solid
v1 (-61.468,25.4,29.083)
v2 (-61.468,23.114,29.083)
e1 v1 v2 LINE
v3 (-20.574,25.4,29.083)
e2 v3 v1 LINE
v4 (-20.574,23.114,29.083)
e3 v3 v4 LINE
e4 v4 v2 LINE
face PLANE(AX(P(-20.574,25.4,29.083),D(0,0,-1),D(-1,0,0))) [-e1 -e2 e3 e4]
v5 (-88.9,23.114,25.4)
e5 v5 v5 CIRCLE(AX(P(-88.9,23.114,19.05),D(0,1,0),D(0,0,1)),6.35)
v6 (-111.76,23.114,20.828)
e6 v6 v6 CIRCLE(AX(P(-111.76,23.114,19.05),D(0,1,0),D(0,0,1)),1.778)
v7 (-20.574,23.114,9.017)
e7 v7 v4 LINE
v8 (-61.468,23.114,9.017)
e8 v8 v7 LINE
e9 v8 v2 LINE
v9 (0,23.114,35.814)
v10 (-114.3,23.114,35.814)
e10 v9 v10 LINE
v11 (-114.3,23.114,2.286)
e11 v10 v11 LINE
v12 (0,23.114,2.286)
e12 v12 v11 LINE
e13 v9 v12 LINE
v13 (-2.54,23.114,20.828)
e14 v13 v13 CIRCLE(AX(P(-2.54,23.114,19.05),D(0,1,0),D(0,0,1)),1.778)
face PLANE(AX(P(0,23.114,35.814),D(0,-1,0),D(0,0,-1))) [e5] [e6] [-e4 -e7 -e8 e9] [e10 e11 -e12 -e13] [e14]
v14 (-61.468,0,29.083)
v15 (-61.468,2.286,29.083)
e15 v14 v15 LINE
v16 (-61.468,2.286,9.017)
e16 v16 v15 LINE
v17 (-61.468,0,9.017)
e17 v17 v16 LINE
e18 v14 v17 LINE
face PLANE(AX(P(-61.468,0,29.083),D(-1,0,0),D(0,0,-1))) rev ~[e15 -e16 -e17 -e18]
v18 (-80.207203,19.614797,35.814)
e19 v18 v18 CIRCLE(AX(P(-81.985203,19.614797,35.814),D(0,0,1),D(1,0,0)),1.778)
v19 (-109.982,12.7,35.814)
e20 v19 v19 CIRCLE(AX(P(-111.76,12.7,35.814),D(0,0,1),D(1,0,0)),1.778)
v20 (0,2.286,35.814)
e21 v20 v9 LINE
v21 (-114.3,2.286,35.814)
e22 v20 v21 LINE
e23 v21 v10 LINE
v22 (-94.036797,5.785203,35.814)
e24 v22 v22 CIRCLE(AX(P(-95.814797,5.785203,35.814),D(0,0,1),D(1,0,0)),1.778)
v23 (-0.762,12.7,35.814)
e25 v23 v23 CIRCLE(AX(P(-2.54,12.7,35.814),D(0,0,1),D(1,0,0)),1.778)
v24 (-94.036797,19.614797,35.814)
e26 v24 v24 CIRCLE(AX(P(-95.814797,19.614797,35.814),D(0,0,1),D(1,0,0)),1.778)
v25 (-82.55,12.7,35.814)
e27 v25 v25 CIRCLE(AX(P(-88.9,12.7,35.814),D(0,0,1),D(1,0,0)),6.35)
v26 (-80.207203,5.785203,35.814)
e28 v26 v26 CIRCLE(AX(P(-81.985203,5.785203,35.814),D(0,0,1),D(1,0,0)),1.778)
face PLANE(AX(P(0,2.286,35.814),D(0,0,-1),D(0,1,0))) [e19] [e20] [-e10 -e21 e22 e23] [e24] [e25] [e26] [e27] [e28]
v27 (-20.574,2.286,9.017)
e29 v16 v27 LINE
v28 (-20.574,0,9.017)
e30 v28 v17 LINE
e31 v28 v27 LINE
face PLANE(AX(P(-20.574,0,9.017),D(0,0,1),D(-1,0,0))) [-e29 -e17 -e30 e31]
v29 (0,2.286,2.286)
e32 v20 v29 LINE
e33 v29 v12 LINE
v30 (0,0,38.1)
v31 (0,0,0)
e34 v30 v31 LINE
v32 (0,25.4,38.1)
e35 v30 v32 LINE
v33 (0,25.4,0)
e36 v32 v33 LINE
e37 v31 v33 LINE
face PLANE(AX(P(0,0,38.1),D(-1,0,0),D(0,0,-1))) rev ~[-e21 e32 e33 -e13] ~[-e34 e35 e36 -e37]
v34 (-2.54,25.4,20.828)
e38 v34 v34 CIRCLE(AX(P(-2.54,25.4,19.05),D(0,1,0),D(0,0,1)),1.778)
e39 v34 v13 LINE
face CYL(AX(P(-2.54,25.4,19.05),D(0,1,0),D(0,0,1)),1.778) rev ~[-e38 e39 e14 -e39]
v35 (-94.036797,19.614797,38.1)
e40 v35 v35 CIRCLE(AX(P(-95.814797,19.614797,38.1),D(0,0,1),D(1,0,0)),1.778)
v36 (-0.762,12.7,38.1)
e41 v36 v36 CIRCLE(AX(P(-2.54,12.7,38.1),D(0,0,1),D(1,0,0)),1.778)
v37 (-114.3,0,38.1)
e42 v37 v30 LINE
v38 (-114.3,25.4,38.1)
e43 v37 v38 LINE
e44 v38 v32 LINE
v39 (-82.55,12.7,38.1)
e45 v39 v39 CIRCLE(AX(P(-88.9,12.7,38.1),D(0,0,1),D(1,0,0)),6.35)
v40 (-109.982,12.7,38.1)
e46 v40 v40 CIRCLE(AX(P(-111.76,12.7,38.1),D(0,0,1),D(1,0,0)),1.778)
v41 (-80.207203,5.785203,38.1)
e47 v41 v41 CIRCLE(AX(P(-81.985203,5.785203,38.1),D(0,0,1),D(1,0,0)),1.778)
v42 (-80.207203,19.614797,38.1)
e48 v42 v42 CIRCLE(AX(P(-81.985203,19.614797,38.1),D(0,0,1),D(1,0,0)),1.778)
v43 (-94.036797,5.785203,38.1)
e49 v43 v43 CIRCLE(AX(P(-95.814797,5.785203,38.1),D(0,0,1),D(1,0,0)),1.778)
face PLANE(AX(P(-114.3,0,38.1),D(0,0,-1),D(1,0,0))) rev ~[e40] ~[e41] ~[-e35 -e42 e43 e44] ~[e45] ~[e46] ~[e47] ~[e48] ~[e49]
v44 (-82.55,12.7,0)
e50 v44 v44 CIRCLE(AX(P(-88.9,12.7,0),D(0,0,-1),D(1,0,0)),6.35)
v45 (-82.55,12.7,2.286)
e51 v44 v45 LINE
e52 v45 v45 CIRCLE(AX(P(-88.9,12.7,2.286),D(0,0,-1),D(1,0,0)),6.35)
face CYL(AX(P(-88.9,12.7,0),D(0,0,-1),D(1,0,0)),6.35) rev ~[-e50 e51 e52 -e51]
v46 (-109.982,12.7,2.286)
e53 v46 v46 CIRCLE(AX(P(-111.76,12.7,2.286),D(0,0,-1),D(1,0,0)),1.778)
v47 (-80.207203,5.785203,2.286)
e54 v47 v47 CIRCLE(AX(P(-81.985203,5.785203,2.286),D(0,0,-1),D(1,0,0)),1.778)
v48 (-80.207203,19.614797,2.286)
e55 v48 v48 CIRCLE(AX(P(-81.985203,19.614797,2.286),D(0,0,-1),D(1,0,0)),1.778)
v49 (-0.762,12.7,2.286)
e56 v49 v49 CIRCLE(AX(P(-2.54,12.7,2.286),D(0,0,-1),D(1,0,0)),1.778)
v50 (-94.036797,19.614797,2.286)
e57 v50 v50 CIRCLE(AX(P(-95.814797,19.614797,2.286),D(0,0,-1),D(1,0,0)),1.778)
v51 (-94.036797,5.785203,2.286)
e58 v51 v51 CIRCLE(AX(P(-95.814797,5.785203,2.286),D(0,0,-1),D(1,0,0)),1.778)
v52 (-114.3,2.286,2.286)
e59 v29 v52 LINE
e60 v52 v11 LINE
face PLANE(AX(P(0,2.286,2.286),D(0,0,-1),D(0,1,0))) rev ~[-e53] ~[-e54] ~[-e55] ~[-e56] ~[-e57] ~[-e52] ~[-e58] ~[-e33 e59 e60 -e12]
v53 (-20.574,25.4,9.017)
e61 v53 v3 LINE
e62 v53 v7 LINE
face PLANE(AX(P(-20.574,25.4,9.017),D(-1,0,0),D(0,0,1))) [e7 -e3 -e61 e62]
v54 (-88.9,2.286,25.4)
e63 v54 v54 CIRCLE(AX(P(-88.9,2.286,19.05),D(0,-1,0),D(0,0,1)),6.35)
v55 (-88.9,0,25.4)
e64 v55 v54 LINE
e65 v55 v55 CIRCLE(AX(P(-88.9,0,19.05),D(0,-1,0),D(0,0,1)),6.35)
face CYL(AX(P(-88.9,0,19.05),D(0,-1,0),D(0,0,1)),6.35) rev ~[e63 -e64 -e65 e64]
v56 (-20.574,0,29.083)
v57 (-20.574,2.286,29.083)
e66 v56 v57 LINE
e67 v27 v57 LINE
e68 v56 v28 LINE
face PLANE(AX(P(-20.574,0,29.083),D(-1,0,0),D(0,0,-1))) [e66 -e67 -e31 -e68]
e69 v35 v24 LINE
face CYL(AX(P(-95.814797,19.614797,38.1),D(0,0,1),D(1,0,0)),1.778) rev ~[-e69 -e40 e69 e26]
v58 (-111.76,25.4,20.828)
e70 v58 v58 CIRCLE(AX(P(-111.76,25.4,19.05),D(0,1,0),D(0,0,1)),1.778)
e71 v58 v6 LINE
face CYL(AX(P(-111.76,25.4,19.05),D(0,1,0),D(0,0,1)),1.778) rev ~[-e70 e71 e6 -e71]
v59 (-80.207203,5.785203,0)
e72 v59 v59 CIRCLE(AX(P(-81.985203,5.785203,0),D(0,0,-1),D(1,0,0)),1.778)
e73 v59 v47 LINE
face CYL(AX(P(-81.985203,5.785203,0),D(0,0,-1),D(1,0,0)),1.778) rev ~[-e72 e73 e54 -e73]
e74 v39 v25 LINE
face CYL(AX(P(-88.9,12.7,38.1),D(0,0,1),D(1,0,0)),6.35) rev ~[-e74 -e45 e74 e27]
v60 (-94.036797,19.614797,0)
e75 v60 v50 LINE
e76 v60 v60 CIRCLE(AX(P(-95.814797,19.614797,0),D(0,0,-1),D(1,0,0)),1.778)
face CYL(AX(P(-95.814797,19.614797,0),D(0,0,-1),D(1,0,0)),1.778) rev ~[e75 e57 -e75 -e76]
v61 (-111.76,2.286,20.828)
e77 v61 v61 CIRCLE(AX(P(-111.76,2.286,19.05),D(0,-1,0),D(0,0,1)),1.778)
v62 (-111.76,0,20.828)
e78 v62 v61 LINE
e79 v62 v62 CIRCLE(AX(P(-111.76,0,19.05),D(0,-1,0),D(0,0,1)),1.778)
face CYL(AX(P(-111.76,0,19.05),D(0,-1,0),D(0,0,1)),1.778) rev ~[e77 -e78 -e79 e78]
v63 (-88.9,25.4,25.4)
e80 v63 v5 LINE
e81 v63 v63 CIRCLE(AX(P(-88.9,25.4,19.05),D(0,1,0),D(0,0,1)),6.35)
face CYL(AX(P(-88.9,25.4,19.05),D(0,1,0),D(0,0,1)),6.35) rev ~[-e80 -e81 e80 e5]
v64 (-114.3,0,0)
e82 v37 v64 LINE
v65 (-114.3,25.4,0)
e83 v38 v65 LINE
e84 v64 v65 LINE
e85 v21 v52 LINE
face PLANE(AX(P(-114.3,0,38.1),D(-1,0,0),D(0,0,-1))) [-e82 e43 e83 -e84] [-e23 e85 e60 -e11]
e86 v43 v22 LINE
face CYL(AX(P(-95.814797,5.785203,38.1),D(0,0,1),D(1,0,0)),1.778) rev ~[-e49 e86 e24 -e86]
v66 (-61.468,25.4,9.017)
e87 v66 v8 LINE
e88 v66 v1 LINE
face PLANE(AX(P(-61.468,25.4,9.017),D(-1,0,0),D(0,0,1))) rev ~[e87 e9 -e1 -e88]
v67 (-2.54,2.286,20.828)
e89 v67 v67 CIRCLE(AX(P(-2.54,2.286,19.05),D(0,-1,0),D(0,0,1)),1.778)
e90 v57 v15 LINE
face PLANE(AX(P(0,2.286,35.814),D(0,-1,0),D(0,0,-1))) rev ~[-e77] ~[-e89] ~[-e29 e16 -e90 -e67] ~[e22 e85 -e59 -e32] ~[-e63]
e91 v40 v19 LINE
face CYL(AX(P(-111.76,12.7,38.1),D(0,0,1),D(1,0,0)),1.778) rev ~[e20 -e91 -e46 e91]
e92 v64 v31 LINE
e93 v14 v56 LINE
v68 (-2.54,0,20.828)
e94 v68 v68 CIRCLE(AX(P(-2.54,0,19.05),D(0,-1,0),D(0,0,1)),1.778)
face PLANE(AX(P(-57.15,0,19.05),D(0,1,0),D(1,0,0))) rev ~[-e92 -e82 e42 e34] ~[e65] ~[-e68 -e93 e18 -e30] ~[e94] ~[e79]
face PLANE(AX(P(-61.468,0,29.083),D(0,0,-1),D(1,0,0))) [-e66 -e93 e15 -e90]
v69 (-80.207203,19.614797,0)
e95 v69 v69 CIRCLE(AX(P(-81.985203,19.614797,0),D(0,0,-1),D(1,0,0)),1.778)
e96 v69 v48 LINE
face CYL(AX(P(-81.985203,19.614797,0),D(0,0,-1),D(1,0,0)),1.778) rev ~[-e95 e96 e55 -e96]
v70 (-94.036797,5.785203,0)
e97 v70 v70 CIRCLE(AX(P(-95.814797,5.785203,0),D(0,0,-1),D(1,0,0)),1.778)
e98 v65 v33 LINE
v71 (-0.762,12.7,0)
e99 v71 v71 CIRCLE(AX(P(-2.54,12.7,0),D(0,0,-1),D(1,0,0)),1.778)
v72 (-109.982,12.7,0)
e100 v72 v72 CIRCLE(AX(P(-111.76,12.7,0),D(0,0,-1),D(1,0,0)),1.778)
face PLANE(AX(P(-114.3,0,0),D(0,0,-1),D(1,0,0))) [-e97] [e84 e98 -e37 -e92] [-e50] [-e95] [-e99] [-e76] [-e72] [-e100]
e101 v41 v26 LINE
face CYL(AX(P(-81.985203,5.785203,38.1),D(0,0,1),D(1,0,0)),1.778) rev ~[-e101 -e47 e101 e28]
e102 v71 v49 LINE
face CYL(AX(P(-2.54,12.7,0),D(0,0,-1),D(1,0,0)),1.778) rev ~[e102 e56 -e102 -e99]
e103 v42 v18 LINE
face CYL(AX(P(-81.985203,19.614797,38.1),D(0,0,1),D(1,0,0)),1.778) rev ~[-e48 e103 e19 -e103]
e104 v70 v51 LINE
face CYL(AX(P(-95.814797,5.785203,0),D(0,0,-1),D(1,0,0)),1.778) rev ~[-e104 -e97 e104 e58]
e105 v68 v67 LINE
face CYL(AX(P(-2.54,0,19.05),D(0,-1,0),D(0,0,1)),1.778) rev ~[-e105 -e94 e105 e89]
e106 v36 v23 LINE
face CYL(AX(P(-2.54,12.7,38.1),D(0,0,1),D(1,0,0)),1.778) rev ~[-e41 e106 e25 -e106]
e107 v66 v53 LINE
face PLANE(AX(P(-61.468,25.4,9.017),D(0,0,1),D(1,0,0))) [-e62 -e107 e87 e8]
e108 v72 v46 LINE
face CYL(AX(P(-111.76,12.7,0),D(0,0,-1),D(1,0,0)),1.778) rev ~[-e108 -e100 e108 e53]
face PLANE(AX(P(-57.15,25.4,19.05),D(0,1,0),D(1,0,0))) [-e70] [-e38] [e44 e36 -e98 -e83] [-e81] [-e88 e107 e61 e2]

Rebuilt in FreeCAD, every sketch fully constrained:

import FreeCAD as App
import Part
import Sketcher
Q = App.Units.Quantity


def add_polygon(sketch, points):
    """Adds a closed chain of lines whose ends are joined by coincident constraints."""
    first, n = sketch.GeometryCount, len(points)
    for a, b in zip(points, points[1:] + points[:1]):
        sketch.addGeometry(Part.LineSegment(App.Vector(*a, 0), App.Vector(*b, 0)), False)
    for i in range(n):
        sketch.addConstraint(Sketcher.Constraint("Coincident", first + i, 2, first + (i + 1) % n, 1))

doc = App.newDocument("Part")
body = doc.addObject("PartDesign::Body", "Body")

# Sketch on XZ plane
sketch1 = body.newObject("Sketcher::SketchObject", "Sketch")
sketch1.AttachmentSupport = (doc.getObject("XZ_Plane"), [""])
sketch1.MapMode = "FlatFace"
add_polygon(sketch1, [(-114, 0), (-114, 38), (0, 38), (0, 0)])  # lines 0-3
sketch1.addConstraint([
    Sketcher.Constraint("Vertical", 0),
    Sketcher.Constraint("Horizontal", 1),
    Sketcher.Constraint("Vertical", 2),
    Sketcher.Constraint("Horizontal", 3),
    Sketcher.Constraint("Coincident", 2, 2, -1, 1),
    Sketcher.Constraint("DistanceX", 1, 1, 1, 2, Q("4.5 in")),
    Sketcher.Constraint("DistanceY", 0, 1, 0, 2, Q("1.5 in")),
])
pad1 = body.newObject("PartDesign::Pad", "Pad")
pad1.Profile = sketch1
pad1.Length = Q("1 in")
pad1.Reversed = True

# Sketch on YZ plane
sketch2 = body.newObject("Sketcher::SketchObject", "Sketch001")
sketch2.AttachmentSupport = (doc.getObject("YZ_Plane"), [""])
sketch2.MapMode = "FlatFace"
add_polygon(sketch2, [(23, 36), (2, 36), (2, 2), (23, 2)])  # lines 0-3
sketch2.addConstraint([
    Sketcher.Constraint("Horizontal", 0),
    Sketcher.Constraint("Vertical", 1),
    Sketcher.Constraint("Horizontal", 2),
    Sketcher.Constraint("Vertical", 3),
    Sketcher.Constraint("DistanceX", 0, 2, 0, 1, Q("0.82 in")),
    Sketcher.Constraint("DistanceY", 1, 2, 1, 1, Q("1.32 in")),
    Sketcher.Constraint("DistanceX", -1, 1, 0, 2, Q("0.09 in")),
    Sketcher.Constraint("DistanceY", -1, 1, 0, 2, Q("1.41 in")),
])
pocket1 = body.newObject("PartDesign::Pocket", "Pocket")
pocket1.Profile = sketch2
pocket1.Type = "UpToFirst"

# Sketch on XY plane
sketch3 = body.newObject("Sketcher::SketchObject", "Sketch002")
sketch3.AttachmentSupport = (doc.getObject("XY_Plane"), [""])
sketch3.MapMode = "FlatFace"
sketch3.AttachmentOffset = App.Placement(App.Vector(0, 0, 1.5 * 25.4), App.Rotation())
sketch3.addGeometry(Part.Circle(App.Vector(-2.5, 12.7, 0), App.Vector(0, 0, 1), 1.8), False)
sketch3.addConstraint([
    Sketcher.Constraint("Diameter", 0, Q("0.14 in")),
    Sketcher.Constraint("DistanceX", 0, 3, -1, 1, Q("0.1 in")),
    Sketcher.Constraint("DistanceY", -1, 1, 0, 3, Q("0.5 in")),
])
pocket2 = body.newObject("PartDesign::Pocket", "Pocket001")
pocket2.Profile = sketch3
pocket2.Type = "UpToFirst"

# Sketch on XY plane
sketch4 = body.newObject("Sketcher::SketchObject", "Sketch003")
sketch4.AttachmentSupport = (doc.getObject("XY_Plane"), [""])
sketch4.MapMode = "FlatFace"
sketch4.addGeometry(Part.Circle(App.Vector(-2.5, 12.7, 0), App.Vector(0, 0, 1), 1.8), False)
sketch4.addConstraint([
    Sketcher.Constraint("Diameter", 0, Q("0.14 in")),
    Sketcher.Constraint("DistanceX", 0, 3, -1, 1, Q("0.1 in")),
    Sketcher.Constraint("DistanceY", -1, 1, 0, 3, Q("0.5 in")),
])
pocket3 = body.newObject("PartDesign::Pocket", "Pocket002")
pocket3.Profile = sketch4
pocket3.Type = "UpToFirst"
pocket3.Reversed = True

# Sketch on XY plane
sketch5 = body.newObject("Sketcher::SketchObject", "Sketch004")
sketch5.AttachmentSupport = (doc.getObject("XY_Plane"), [""])
sketch5.MapMode = "FlatFace"
sketch5.AttachmentOffset = App.Placement(App.Vector(0, 0, 1.5 * 25.4), App.Rotation())
sketch5.addGeometry(Part.Circle(App.Vector(-111.8, 12.7, 0), App.Vector(0, 0, 1), 1.8), False)
sketch5.addConstraint([
    Sketcher.Constraint("Diameter", 0, Q("0.14 in")),
    Sketcher.Constraint("DistanceX", 0, 3, -1, 1, Q("4.4 in")),
    Sketcher.Constraint("DistanceY", -1, 1, 0, 3, Q("0.5 in")),
])
pocket4 = body.newObject("PartDesign::Pocket", "Pocket003")
pocket4.Profile = sketch5
pocket4.Type = "UpToFirst"

# Sketch on XY plane
sketch6 = body.newObject("Sketcher::SketchObject", "Sketch005")
sketch6.AttachmentSupport = (doc.getObject("XY_Plane"), [""])
sketch6.MapMode = "FlatFace"
sketch6.AttachmentOffset = App.Placement(App.Vector(0, 0, 1.5 * 25.4), App.Rotation())
sketch6.addGeometry(Part.Circle(App.Vector(-89, 13, 0), App.Vector(0, 0, 1), 6), False)
sketch6.addConstraint([
    Sketcher.Constraint("Diameter", 0, Q("0.5 in")),
    Sketcher.Constraint("DistanceX", 0, 3, -1, 1, Q("3.5 in")),
    Sketcher.Constraint("DistanceY", -1, 1, 0, 3, Q("0.5 in")),
])
pocket5 = body.newObject("PartDesign::Pocket", "Pocket004")
pocket5.Profile = sketch6
pocket5.Type = "UpToFirst"

# Sketch on XY plane
sketch7 = body.newObject("Sketcher::SketchObject", "Sketch006")
sketch7.AttachmentSupport = (doc.getObject("XY_Plane"), [""])
sketch7.MapMode = "FlatFace"
sketch7.AttachmentOffset = App.Placement(App.Vector(0, 0, 1.5 * 25.4), App.Rotation())
sketch7.addGeometry(Part.Circle(App.Vector(-95.8, 19.6, 0), App.Vector(0, 0, 1), 1.8), False)
sketch7.addConstraint([
    Sketcher.Constraint("Diameter", 0, Q("0.14 in")),
    Sketcher.Constraint("DistanceX", 0, 3, -1, 1, 95.814797),
    Sketcher.Constraint("DistanceY", -1, 1, 0, 3, 19.614797),
])
pocket6 = body.newObject("PartDesign::Pocket", "Pocket005")
pocket6.Profile = sketch7
pocket6.Type = "UpToFirst"

# Sketch on XY plane
sketch8 = body.newObject("Sketcher::SketchObject", "Sketch007")
sketch8.AttachmentSupport = (doc.getObject("XY_Plane"), [""])
sketch8.MapMode = "FlatFace"
sketch8.AttachmentOffset = App.Placement(App.Vector(0, 0, 1.5 * 25.4), App.Rotation())
sketch8.addGeometry(Part.Circle(App.Vector(-82, 19.6, 0), App.Vector(0, 0, 1), 1.8), False)
sketch8.addConstraint([
    Sketcher.Constraint("Diameter", 0, Q("0.14 in")),
    Sketcher.Constraint("DistanceX", 0, 3, -1, 1, 81.985203),
    Sketcher.Constraint("DistanceY", -1, 1, 0, 3, 19.614797),
])
pocket7 = body.newObject("PartDesign::Pocket", "Pocket006")
pocket7.Profile = sketch8
pocket7.Type = "UpToFirst"

# Sketch on XY plane
sketch9 = body.newObject("Sketcher::SketchObject", "Sketch008")
sketch9.AttachmentSupport = (doc.getObject("XY_Plane"), [""])
sketch9.MapMode = "FlatFace"
sketch9.AttachmentOffset = App.Placement(App.Vector(0, 0, 1.5 * 25.4), App.Rotation())
sketch9.addGeometry(Part.Circle(App.Vector(-95.8, 5.8, 0), App.Vector(0, 0, 1), 1.8), False)
sketch9.addConstraint([
    Sketcher.Constraint("Diameter", 0, Q("0.14 in")),
    Sketcher.Constraint("DistanceX", 0, 3, -1, 1, 95.814797),
    Sketcher.Constraint("DistanceY", -1, 1, 0, 3, 5.785203),
])
pocket8 = body.newObject("PartDesign::Pocket", "Pocket007")
pocket8.Profile = sketch9
pocket8.Type = "UpToFirst"

# Sketch on XY plane
sketch10 = body.newObject("Sketcher::SketchObject", "Sketch009")
sketch10.AttachmentSupport = (doc.getObject("XY_Plane"), [""])
sketch10.MapMode = "FlatFace"
sketch10.AttachmentOffset = App.Placement(App.Vector(0, 0, 1.5 * 25.4), App.Rotation())
sketch10.addGeometry(Part.Circle(App.Vector(-82, 5.8, 0), App.Vector(0, 0, 1), 1.8), False)
sketch10.addConstraint([
    Sketcher.Constraint("Diameter", 0, Q("0.14 in")),
    Sketcher.Constraint("DistanceX", 0, 3, -1, 1, 81.985203),
    Sketcher.Constraint("DistanceY", -1, 1, 0, 3, 5.785203),
])
pocket9 = body.newObject("PartDesign::Pocket", "Pocket008")
pocket9.Profile = sketch10
pocket9.Type = "UpToFirst"

# Sketch on XY plane
sketch11 = body.newObject("Sketcher::SketchObject", "Sketch010")
sketch11.AttachmentSupport = (doc.getObject("XY_Plane"), [""])
sketch11.MapMode = "FlatFace"
sketch11.addGeometry(Part.Circle(App.Vector(-111.8, 12.7, 0), App.Vector(0, 0, 1), 1.8), False)
sketch11.addConstraint([
    Sketcher.Constraint("Diameter", 0, Q("0.14 in")),
    Sketcher.Constraint("DistanceX", 0, 3, -1, 1, Q("4.4 in")),
    Sketcher.Constraint("DistanceY", -1, 1, 0, 3, Q("0.5 in")),
])
pocket10 = body.newObject("PartDesign::Pocket", "Pocket009")
pocket10.Profile = sketch11
pocket10.Type = "UpToFirst"
pocket10.Reversed = True

# Sketch on XY plane
sketch12 = body.newObject("Sketcher::SketchObject", "Sketch011")
sketch12.AttachmentSupport = (doc.getObject("XY_Plane"), [""])
sketch12.MapMode = "FlatFace"
sketch12.addGeometry(Part.Circle(App.Vector(-89, 13, 0), App.Vector(0, 0, 1), 6), False)
sketch12.addConstraint([
    Sketcher.Constraint("Diameter", 0, Q("0.5 in")),
    Sketcher.Constraint("DistanceX", 0, 3, -1, 1, Q("3.5 in")),
    Sketcher.Constraint("DistanceY", -1, 1, 0, 3, Q("0.5 in")),
])
pocket11 = body.newObject("PartDesign::Pocket", "Pocket010")
pocket11.Profile = sketch12
pocket11.Type = "UpToFirst"
pocket11.Reversed = True

# Sketch on XY plane
sketch13 = body.newObject("Sketcher::SketchObject", "Sketch012")
sketch13.AttachmentSupport = (doc.getObject("XY_Plane"), [""])
sketch13.MapMode = "FlatFace"
sketch13.addGeometry(Part.Circle(App.Vector(-82, 19.6, 0), App.Vector(0, 0, 1), 1.8), False)
sketch13.addConstraint([
    Sketcher.Constraint("Diameter", 0, Q("0.14 in")),
    Sketcher.Constraint("DistanceX", 0, 3, -1, 1, 81.985203),
    Sketcher.Constraint("DistanceY", -1, 1, 0, 3, 19.614797),
])
pocket12 = body.newObject("PartDesign::Pocket", "Pocket011")
pocket12.Profile = sketch13
pocket12.Type = "UpToFirst"
pocket12.Reversed = True

# Sketch on XY plane
sketch14 = body.newObject("Sketcher::SketchObject", "Sketch013")
sketch14.AttachmentSupport = (doc.getObject("XY_Plane"), [""])
sketch14.MapMode = "FlatFace"
sketch14.addGeometry(Part.Circle(App.Vector(-95.8, 19.6, 0), App.Vector(0, 0, 1), 1.8), False)
sketch14.addConstraint([
    Sketcher.Constraint("Diameter", 0, Q("0.14 in")),
    Sketcher.Constraint("DistanceX", 0, 3, -1, 1, 95.814797),
    Sketcher.Constraint("DistanceY", -1, 1, 0, 3, 19.614797),
])
pocket13 = body.newObject("PartDesign::Pocket", "Pocket012")
pocket13.Profile = sketch14
pocket13.Type = "UpToFirst"
pocket13.Reversed = True

# Sketch on XY plane
sketch15 = body.newObject("Sketcher::SketchObject", "Sketch014")
sketch15.AttachmentSupport = (doc.getObject("XY_Plane"), [""])
sketch15.MapMode = "FlatFace"
sketch15.addGeometry(Part.Circle(App.Vector(-95.8, 5.8, 0), App.Vector(0, 0, 1), 1.8), False)
sketch15.addConstraint([
    Sketcher.Constraint("Diameter", 0, Q("0.14 in")),
    Sketcher.Constraint("DistanceX", 0, 3, -1, 1, 95.814797),
    Sketcher.Constraint("DistanceY", -1, 1, 0, 3, 5.785203),
])
pocket14 = body.newObject("PartDesign::Pocket", "Pocket013")
pocket14.Profile = sketch15
pocket14.Type = "UpToFirst"
pocket14.Reversed = True

# Sketch on XY plane
sketch16 = body.newObject("Sketcher::SketchObject", "Sketch015")
sketch16.AttachmentSupport = (doc.getObject("XY_Plane"), [""])
sketch16.MapMode = "FlatFace"
sketch16.addGeometry(Part.Circle(App.Vector(-82, 5.8, 0), App.Vector(0, 0, 1), 1.8), False)
sketch16.addConstraint([
    Sketcher.Constraint("Diameter", 0, Q("0.14 in")),
    Sketcher.Constraint("DistanceX", 0, 3, -1, 1, 81.985203),
    Sketcher.Constraint("DistanceY", -1, 1, 0, 3, 5.785203),
])
pocket15 = body.newObject("PartDesign::Pocket", "Pocket014")
pocket15.Profile = sketch16
pocket15.Type = "UpToFirst"
pocket15.Reversed = True

# Sketch on XZ plane
sketch17 = body.newObject("Sketcher::SketchObject", "Sketch016")
sketch17.AttachmentSupport = (doc.getObject("XZ_Plane"), [""])
sketch17.MapMode = "FlatFace"
sketch17.AttachmentOffset = App.Placement(App.Vector(0, 0, -1 * 25.4), App.Rotation())
sketch17.addGeometry(Part.Circle(App.Vector(-111.8, 19.1, 0), App.Vector(0, 0, 1), 1.8), False)
sketch17.addConstraint([
    Sketcher.Constraint("Diameter", 0, Q("0.14 in")),
    Sketcher.Constraint("DistanceX", 0, 3, -1, 1, Q("4.4 in")),
    Sketcher.Constraint("DistanceY", -1, 1, 0, 3, Q("0.75 in")),
])
pocket16 = body.newObject("PartDesign::Pocket", "Pocket015")
pocket16.Profile = sketch17
pocket16.Type = "UpToFirst"
pocket16.Reversed = True

# Sketch on XZ plane
sketch18 = body.newObject("Sketcher::SketchObject", "Sketch017")
sketch18.AttachmentSupport = (doc.getObject("XZ_Plane"), [""])
sketch18.MapMode = "FlatFace"
sketch18.AttachmentOffset = App.Placement(App.Vector(0, 0, -1 * 25.4), App.Rotation())
sketch18.addGeometry(Part.Circle(App.Vector(-89, 19, 0), App.Vector(0, 0, 1), 6), False)
sketch18.addConstraint([
    Sketcher.Constraint("Diameter", 0, Q("0.5 in")),
    Sketcher.Constraint("DistanceX", 0, 3, -1, 1, Q("3.5 in")),
    Sketcher.Constraint("DistanceY", -1, 1, 0, 3, Q("0.75 in")),
])
pocket17 = body.newObject("PartDesign::Pocket", "Pocket016")
pocket17.Profile = sketch18
pocket17.Type = "UpToFirst"
pocket17.Reversed = True

# Sketch on XZ plane
sketch19 = body.newObject("Sketcher::SketchObject", "Sketch018")
sketch19.AttachmentSupport = (doc.getObject("XZ_Plane"), [""])
sketch19.MapMode = "FlatFace"
sketch19.AttachmentOffset = App.Placement(App.Vector(0, 0, -1 * 25.4), App.Rotation())
add_polygon(sketch19, [(-61, 9), (-61, 29), (-21, 29), (-21, 9)])  # lines 0-3
sketch19.addConstraint([
    Sketcher.Constraint("Vertical", 0),
    Sketcher.Constraint("Horizontal", 1),
    Sketcher.Constraint("Vertical", 2),
    Sketcher.Constraint("Horizontal", 3),
    Sketcher.Constraint("DistanceX", 1, 1, 1, 2, Q("1.61 in")),
    Sketcher.Constraint("DistanceY", 0, 1, 0, 2, Q("0.79 in")),
    Sketcher.Constraint("DistanceX", 0, 2, -1, 1, Q("2.42 in")),
    Sketcher.Constraint("DistanceY", -1, 1, 0, 2, Q("1.145 in")),
])
pocket18 = body.newObject("PartDesign::Pocket", "Pocket017")
pocket18.Profile = sketch19
pocket18.Type = "UpToFirst"
pocket18.Reversed = True

# Sketch on XZ plane
sketch20 = body.newObject("Sketcher::SketchObject", "Sketch019")
sketch20.AttachmentSupport = (doc.getObject("XZ_Plane"), [""])
sketch20.MapMode = "FlatFace"
sketch20.addGeometry(Part.Circle(App.Vector(-111.8, 19.1, 0), App.Vector(0, 0, 1), 1.8), False)
sketch20.addConstraint([
    Sketcher.Constraint("Diameter", 0, Q("0.14 in")),
    Sketcher.Constraint("DistanceX", 0, 3, -1, 1, Q("4.4 in")),
    Sketcher.Constraint("DistanceY", -1, 1, 0, 3, Q("0.75 in")),
])
pocket19 = body.newObject("PartDesign::Pocket", "Pocket018")
pocket19.Profile = sketch20
pocket19.Type = "UpToFirst"

# Sketch on XZ plane
sketch21 = body.newObject("Sketcher::SketchObject", "Sketch020")
sketch21.AttachmentSupport = (doc.getObject("XZ_Plane"), [""])
sketch21.MapMode = "FlatFace"
sketch21.addGeometry(Part.Circle(App.Vector(-89, 19, 0), App.Vector(0, 0, 1), 6), False)
sketch21.addConstraint([
    Sketcher.Constraint("Diameter", 0, Q("0.5 in")),
    Sketcher.Constraint("DistanceX", 0, 3, -1, 1, Q("3.5 in")),
    Sketcher.Constraint("DistanceY", -1, 1, 0, 3, Q("0.75 in")),
])
pocket20 = body.newObject("PartDesign::Pocket", "Pocket019")
pocket20.Profile = sketch21
pocket20.Type = "UpToFirst"

# Sketch on XZ plane
sketch22 = body.newObject("Sketcher::SketchObject", "Sketch021")
sketch22.AttachmentSupport = (doc.getObject("XZ_Plane"), [""])
sketch22.MapMode = "FlatFace"
add_polygon(sketch22, [(-61, 29), (-61, 9), (-21, 9), (-21, 29)])  # lines 0-3
sketch22.addConstraint([
    Sketcher.Constraint("Vertical", 0),
    Sketcher.Constraint("Horizontal", 1),
    Sketcher.Constraint("Vertical", 2),
    Sketcher.Constraint("Horizontal", 3),
    Sketcher.Constraint("DistanceX", 1, 1, 1, 2, Q("1.61 in")),
    Sketcher.Constraint("DistanceY", 0, 2, 0, 1, Q("0.79 in")),
    Sketcher.Constraint("DistanceX", 0, 2, -1, 1, Q("2.42 in")),
    Sketcher.Constraint("DistanceY", -1, 1, 0, 2, Q("0.355 in")),
])
pocket21 = body.newObject("PartDesign::Pocket", "Pocket020")
pocket21.Profile = sketch22
pocket21.Type = "UpToFirst"

# Sketch on XZ plane
sketch23 = body.newObject("Sketcher::SketchObject", "Sketch022")
sketch23.AttachmentSupport = (doc.getObject("XZ_Plane"), [""])
sketch23.MapMode = "FlatFace"
sketch23.AttachmentOffset = App.Placement(App.Vector(0, 0, -1 * 25.4), App.Rotation())
sketch23.addGeometry(Part.Circle(App.Vector(-2.5, 19.1, 0), App.Vector(0, 0, 1), 1.8), False)
sketch23.addConstraint([
    Sketcher.Constraint("Diameter", 0, Q("0.14 in")),
    Sketcher.Constraint("DistanceX", 0, 3, -1, 1, Q("0.1 in")),
    Sketcher.Constraint("DistanceY", -1, 1, 0, 3, Q("0.75 in")),
])
pocket22 = body.newObject("PartDesign::Pocket", "Pocket021")
pocket22.Profile = sketch23
pocket22.Type = "UpToFirst"
pocket22.Reversed = True

# Sketch on XZ plane
sketch24 = body.newObject("Sketcher::SketchObject", "Sketch023")
sketch24.AttachmentSupport = (doc.getObject("XZ_Plane"), [""])
sketch24.MapMode = "FlatFace"
sketch24.addGeometry(Part.Circle(App.Vector(-2.5, 19.1, 0), App.Vector(0, 0, 1), 1.8), False)
sketch24.addConstraint([
    Sketcher.Constraint("Diameter", 0, Q("0.14 in")),
    Sketcher.Constraint("DistanceX", 0, 3, -1, 1, Q("0.1 in")),
    Sketcher.Constraint("DistanceY", -1, 1, 0, 3, Q("0.75 in")),
])
pocket23 = body.newObject("PartDesign::Pocket", "Pocket022")
pocket23.Profile = sketch24
pocket23.Type = "UpToFirst"

doc.recompute()
